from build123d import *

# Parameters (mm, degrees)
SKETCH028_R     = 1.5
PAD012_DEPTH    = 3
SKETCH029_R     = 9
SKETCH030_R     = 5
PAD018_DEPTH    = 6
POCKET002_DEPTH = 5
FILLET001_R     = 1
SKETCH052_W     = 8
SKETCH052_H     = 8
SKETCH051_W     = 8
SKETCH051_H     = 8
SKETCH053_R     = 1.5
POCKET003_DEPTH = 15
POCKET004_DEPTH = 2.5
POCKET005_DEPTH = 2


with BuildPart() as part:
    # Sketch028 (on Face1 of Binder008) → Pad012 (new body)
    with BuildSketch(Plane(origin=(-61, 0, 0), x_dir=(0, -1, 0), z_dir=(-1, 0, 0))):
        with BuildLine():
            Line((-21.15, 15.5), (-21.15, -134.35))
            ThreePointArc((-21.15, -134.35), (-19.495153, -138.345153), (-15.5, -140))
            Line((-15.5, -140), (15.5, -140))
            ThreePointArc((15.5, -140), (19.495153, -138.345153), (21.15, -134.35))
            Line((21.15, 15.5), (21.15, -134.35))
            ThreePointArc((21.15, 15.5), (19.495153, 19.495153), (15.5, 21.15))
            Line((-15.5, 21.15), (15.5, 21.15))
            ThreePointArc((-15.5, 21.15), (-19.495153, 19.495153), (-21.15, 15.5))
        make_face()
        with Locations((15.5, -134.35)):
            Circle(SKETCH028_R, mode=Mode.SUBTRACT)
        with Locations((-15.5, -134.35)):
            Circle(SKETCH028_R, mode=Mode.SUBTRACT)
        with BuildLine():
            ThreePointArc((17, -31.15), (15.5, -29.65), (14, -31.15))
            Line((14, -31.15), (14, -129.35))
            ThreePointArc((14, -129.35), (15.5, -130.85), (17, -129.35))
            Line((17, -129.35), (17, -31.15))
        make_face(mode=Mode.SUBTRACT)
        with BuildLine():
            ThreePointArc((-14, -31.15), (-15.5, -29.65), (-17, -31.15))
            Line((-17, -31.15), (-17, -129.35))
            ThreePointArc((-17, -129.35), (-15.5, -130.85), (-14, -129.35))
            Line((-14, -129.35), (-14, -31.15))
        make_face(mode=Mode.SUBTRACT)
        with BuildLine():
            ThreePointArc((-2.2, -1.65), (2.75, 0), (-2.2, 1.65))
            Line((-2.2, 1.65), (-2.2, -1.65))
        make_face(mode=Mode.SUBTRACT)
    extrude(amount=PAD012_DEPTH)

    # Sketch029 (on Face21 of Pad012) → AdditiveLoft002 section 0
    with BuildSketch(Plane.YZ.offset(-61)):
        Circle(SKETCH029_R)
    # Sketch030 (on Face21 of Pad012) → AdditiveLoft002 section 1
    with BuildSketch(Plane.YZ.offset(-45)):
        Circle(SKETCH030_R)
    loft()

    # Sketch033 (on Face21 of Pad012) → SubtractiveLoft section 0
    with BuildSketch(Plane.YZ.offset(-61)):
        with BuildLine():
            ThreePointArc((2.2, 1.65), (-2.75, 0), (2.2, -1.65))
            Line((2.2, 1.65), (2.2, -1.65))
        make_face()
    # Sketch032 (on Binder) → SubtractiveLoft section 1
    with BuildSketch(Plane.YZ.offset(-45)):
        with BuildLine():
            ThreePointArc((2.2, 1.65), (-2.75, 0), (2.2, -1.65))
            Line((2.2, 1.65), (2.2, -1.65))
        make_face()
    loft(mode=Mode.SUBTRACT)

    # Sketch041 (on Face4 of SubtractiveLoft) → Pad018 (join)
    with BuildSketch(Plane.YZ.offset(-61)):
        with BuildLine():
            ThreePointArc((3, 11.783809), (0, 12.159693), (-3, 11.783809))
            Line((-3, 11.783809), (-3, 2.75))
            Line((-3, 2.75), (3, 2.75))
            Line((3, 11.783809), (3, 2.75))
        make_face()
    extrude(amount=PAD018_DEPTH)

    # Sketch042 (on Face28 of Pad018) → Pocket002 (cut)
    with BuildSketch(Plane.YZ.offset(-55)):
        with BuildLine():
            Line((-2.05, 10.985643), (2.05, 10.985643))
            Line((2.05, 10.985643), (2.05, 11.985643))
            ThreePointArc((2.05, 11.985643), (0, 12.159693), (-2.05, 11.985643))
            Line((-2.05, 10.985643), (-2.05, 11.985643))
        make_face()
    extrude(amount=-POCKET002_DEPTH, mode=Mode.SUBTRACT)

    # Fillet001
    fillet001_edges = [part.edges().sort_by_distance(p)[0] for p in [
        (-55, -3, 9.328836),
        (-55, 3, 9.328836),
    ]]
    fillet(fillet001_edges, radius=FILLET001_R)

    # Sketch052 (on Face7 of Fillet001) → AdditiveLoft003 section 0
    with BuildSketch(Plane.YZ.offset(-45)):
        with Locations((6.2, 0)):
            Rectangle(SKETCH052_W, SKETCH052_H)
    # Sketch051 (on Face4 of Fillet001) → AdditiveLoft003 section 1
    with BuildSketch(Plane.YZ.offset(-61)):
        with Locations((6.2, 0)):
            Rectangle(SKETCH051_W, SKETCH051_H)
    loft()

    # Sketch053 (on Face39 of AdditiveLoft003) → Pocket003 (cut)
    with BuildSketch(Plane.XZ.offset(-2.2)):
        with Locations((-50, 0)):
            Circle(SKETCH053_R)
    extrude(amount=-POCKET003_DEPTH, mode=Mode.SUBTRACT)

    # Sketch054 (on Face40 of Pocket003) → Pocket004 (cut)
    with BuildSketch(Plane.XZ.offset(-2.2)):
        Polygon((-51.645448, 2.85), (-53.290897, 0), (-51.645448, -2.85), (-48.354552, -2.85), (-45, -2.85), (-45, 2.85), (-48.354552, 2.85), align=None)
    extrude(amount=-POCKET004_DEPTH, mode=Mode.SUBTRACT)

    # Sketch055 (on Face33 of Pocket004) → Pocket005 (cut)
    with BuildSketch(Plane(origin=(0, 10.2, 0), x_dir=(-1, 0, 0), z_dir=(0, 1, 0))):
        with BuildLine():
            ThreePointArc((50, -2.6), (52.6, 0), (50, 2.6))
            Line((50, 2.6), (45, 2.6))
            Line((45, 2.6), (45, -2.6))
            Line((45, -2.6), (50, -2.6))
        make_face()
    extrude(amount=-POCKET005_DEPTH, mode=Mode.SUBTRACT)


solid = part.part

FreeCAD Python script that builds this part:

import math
import FreeCAD as App
import Part
import Sketcher
from FreeCAD import Vector
Q = App.Units.Quantity


def edges_at(feature, points):
    """Names of the edges that pass closest to the given points."""
    edges = feature.Shape.Edges
    near = lambda p: min(range(len(edges)), key=lambda i: edges[i].distToShape(Part.Vertex(*p))[0])
    return sorted({f"Edge{near(p) + 1}" for p in points})

doc = App.newDocument("Part")
body = doc.addObject("PartDesign::Body", "Body")

# Sketch on YZ plane
sketch1 = body.newObject("Sketcher::SketchObject", "Sketch")
sketch1.AttachmentSupport = (doc.getObject("YZ_Plane"), [""])
sketch1.MapMode = "FlatFace"
sketch1.AttachmentOffset = App.Placement(Vector(0, 0, -61), App.Rotation())
sketch1.addGeometry(Part.LineSegment(Vector(21.15, 15.5, 0), Vector(21.15, -134.35, 0)), False)
sketch1.addGeometry(Part.ArcOfCircle(Part.Circle(Vector(15.499999, -134.349999, 0), Vector(0, 0, 1), 5.650001), math.radians(-89.999989), math.radians(-0.000011)), False)
sketch1.addGeometry(Part.LineSegment(Vector(15.5, -140, 0), Vector(-15.5, -140, 0)), False)
sketch1.addGeometry(Part.ArcOfCircle(Part.Circle(Vector(-15.499999, -134.349999, 0), Vector(0, 0, 1), 5.650001), math.radians(-179.999989), math.radians(-90.000011)), False)
sketch1.addGeometry(Part.LineSegment(Vector(-21.15, -134.35, 0), Vector(-21.15, 15.5, 0)), False)
sketch1.addGeometry(Part.ArcOfCircle(Part.Circle(Vector(-15.499999, 15.499999, 0), Vector(0, 0, 1), 5.650001), math.radians(90.000011), math.radians(179.999989)), False)
sketch1.addGeometry(Part.LineSegment(Vector(-15.5, 21.15, 0), Vector(15.5, 21.15, 0)), False)
sketch1.addGeometry(Part.ArcOfCircle(Part.Circle(Vector(15.499999, 15.499999, 0), Vector(0, 0, 1), 5.650001), math.radians(0.000011), math.radians(89.999989)), False)
sketch1.addGeometry(Part.Circle(Vector(15.5, -134.35, 0), Vector(0, 0, 1), 1.5), False)
sketch1.addGeometry(Part.ArcOfCircle(Part.Circle(Vector(15.5, -31.15, 0), Vector(0, 0, 1), 1.5), math.radians(0), math.radians(180)), False)
sketch1.addGeometry(Part.LineSegment(Vector(14, -31.15, 0), Vector(14, -129.35, 0)), False)
sketch1.addGeometry(Part.ArcOfCircle(Part.Circle(Vector(15.5, -129.35, 0), Vector(0, 0, 1), 1.5), math.radians(180), math.radians(360)), False)
sketch1.addGeometry(Part.LineSegment(Vector(17, -129.35, 0), Vector(17, -31.15, 0)), False)
sketch1.addGeometry(Part.Circle(Vector(-15.5, -134.35, 0), Vector(0, 0, 1), 1.5), False)
sketch1.addGeometry(Part.ArcOfCircle(Part.Circle(Vector(-15.5, -31.15, 0), Vector(0, 0, 1), 1.5), math.radians(0), math.radians(180)), False)
sketch1.addGeometry(Part.LineSegment(Vector(-17, -31.15, 0), Vector(-17, -129.35, 0)), False)
sketch1.addGeometry(Part.ArcOfCircle(Part.Circle(Vector(-15.5, -129.35, 0), Vector(0, 0, 1), 1.5), math.radians(180), math.radians(360)), False)
sketch1.addGeometry(Part.LineSegment(Vector(-14, -129.35, 0), Vector(-14, -31.15, 0)), False)
sketch1.addGeometry(Part.ArcOfCircle(Part.Circle(Vector(0, 0, 0), Vector(0, 0, 1), 2.75), math.radians(36.869898), math.radians(323.130102)), False)
sketch1.addGeometry(Part.LineSegment(Vector(2.2, -1.65, 0), Vector(2.2, 1.65, 0)), False)
sketch1.addConstraint(Sketcher.Constraint("Tangent", 0, 2, 1, 2))
sketch1.addConstraint(Sketcher.Constraint("Tangent", 1, 1, 2, 1))
sketch1.addConstraint(Sketcher.Constraint("Tangent", 2, 2, 3, 2))
sketch1.addConstraint(Sketcher.Constraint("Tangent", 3, 1, 4, 1))
sketch1.addConstraint(Sketcher.Constraint("Tangent", 4, 2, 5, 2))
sketch1.addConstraint(Sketcher.Constraint("Tangent", 5, 1, 6, 1))
sketch1.addConstraint(Sketcher.Constraint("Tangent", 6, 2, 7, 2))
sketch1.addConstraint(Sketcher.Constraint("Tangent", 7, 1, 0, 1))
sketch1.addConstraint(Sketcher.Constraint("Tangent", 9, 2, 10, 1))
sketch1.addConstraint(Sketcher.Constraint("Tangent", 10, 2, 11, 1))
sketch1.addConstraint(Sketcher.Constraint("Tangent", 11, 2, 12, 1))
sketch1.addConstraint(Sketcher.Constraint("Tangent", 12, 2, 9, 1))
sketch1.addConstraint(Sketcher.Constraint("Tangent", 14, 2, 15, 1))
sketch1.addConstraint(Sketcher.Constraint("Tangent", 15, 2, 16, 1))
sketch1.addConstraint(Sketcher.Constraint("Tangent", 16, 2, 17, 1))
sketch1.addConstraint(Sketcher.Constraint("Tangent", 17, 2, 14, 1))
sketch1.addConstraint(Sketcher.Constraint("Coincident", 18, 1, 19, 2))
sketch1.addConstraint(Sketcher.Constraint("Coincident", 19, 1, 18, 2))
sketch1.addConstraint(Sketcher.Constraint("Vertical", 0))
sketch1.addConstraint(Sketcher.Constraint("Horizontal", 2))
sketch1.addConstraint(Sketcher.Constraint("Vertical", 4))
sketch1.addConstraint(Sketcher.Constraint("Horizontal", 6))
sketch1.addConstraint(Sketcher.Constraint("Vertical", 10))
sketch1.addConstraint(Sketcher.Constraint("Vertical", 12))
sketch1.addConstraint(Sketcher.Constraint("Vertical", 15))
sketch1.addConstraint(Sketcher.Constraint("Vertical", 17))
sketch1.addConstraint(Sketcher.Constraint("Vertical", 19))
sketch1.addConstraint(Sketcher.Constraint("Coincident", 18, 3, -1, 1))
sketch1.addConstraint(Sketcher.Constraint("Coincident", 8, 3, 1, 3))
sketch1.addConstraint(Sketcher.Constraint("Coincident", 13, 3, 3, 3))
sketch1.addConstraint(Sketcher.Constraint("Equal", 1, 3))
sketch1.addConstraint(Sketcher.Constraint("Equal", 3, 5))
sketch1.addConstraint(Sketcher.Constraint("Equal", 5, 7))
sketch1.addConstraint(Sketcher.Constraint("Equal", 8, 9))
sketch1.addConstraint(Sketcher.Constraint("Equal", 11, 13))
sketch1.addConstraint(Sketcher.Constraint("Equal", 13, 14))
sketch1.addConstraint(Sketcher.Constraint("Symmetric", 9, 3, 14, 3, -2))
sketch1.addConstraint(Sketcher.Constraint("Horizontal", 11, 3, 16, 3))
sketch1.addConstraint(Sketcher.Constraint("Vertical", 8, 3, 9, 3))
sketch1.addConstraint(Sketcher.Constraint("Vertical", 13, 3, 14, 3))
sketch1.addConstraint(Sketcher.Constraint("Diameter", 8, 3.0))
sketch1.addConstraint(Sketcher.Constraint("DistanceX", 2, 2, 2, 1, 31.0))
sketch1.addConstraint(Sketcher.Constraint("Radius", 1, 5.650001))
sketch1.addConstraint(Sketcher.Constraint("Radius", 18, 2.75))
sketch1.addConstraint(Sketcher.Constraint("DistanceY", 10, 2, 10, 1, 98.2))
sketch1.addConstraint(Sketcher.Constraint("DistanceY", 19, 1, 19, 2, 3.3))
sketch1.addConstraint(Sketcher.Constraint("DistanceY", 1, 1, -1, 1, 140.0))
sketch1.addConstraint(Sketcher.Constraint("DistanceY", 1, 3, 11, 3, 4.999999))
sketch1.addConstraint(Sketcher.Constraint("DistanceY", 0, 2, 0, 1, 149.85))
pad1 = body.newObject("PartDesign::Pad", "Pad")
pad1.Profile = sketch1
pad1.Length = 3
pad1.Reversed = True

# Sketch on YZ plane
sketch2 = body.newObject("Sketcher::SketchObject", "Sketch001")
sketch2.AttachmentSupport = (doc.getObject("YZ_Plane"), [""])
sketch2.MapMode = "FlatFace"
sketch2.AttachmentOffset = App.Placement(Vector(0, 0, -61), App.Rotation())
sketch2.addGeometry(Part.Circle(Vector(0, 0, 0), Vector(0, 0, 1), 9), False)
sketch2.addConstraint(Sketcher.Constraint("Coincident", 0, 3, -1, 1))
sketch2.addConstraint(Sketcher.Constraint("Diameter", 0, 18.0))

# Sketch on YZ plane
sketch3 = body.newObject("Sketcher::SketchObject", "Sketch002")
sketch3.AttachmentSupport = (doc.getObject("YZ_Plane"), [""])
sketch3.MapMode = "FlatFace"
sketch3.AttachmentOffset = App.Placement(Vector(0, 0, -45), App.Rotation())
sketch3.addGeometry(Part.Circle(Vector(0, 0, 0), Vector(0, 0, 1), 5), False)
sketch3.addConstraint(Sketcher.Constraint("Coincident", 0, 3, -1, 1))
sketch3.addConstraint(Sketcher.Constraint("Diameter", 0, 10.0))

additiveloft = body.newObject("PartDesign::AdditiveLoft", "AdditiveLoft")
additiveloft.Profile = sketch2
additiveloft.Sections = [sketch3]

# Sketch on YZ plane
sketch4 = body.newObject("Sketcher::SketchObject", "Sketch003")
sketch4.AttachmentSupport = (doc.getObject("YZ_Plane"), [""])
sketch4.MapMode = "FlatFace"
sketch4.AttachmentOffset = App.Placement(Vector(0, 0, -61), App.Rotation())
sketch4.addGeometry(Part.ArcOfCircle(Part.Circle(Vector(0, 0, 0), Vector(0, 0, 1), 2.75), math.radians(36.869898), math.radians(323.130102)), False)
sketch4.addGeometry(Part.LineSegment(Vector(2.2, -1.65, 0), Vector(2.2, 1.65, 0)), False)
sketch4.addConstraint(Sketcher.Constraint("Coincident", 0, 1, 1, 2))
sketch4.addConstraint(Sketcher.Constraint("Coincident", 1, 1, 0, 2))
sketch4.addConstraint(Sketcher.Constraint("Vertical", 1))
sketch4.addConstraint(Sketcher.Constraint("Coincident", 0, 3, -1, 1))
sketch4.addConstraint(Sketcher.Constraint("Radius", 0, 2.75))
sketch4.addConstraint(Sketcher.Constraint("DistanceY", 1, 1, 1, 2, 3.3))

# Sketch on YZ plane
sketch5 = body.newObject("Sketcher::SketchObject", "Sketch004")
sketch5.AttachmentSupport = (doc.getObject("YZ_Plane"), [""])
sketch5.MapMode = "FlatFace"
sketch5.AttachmentOffset = App.Placement(Vector(0, 0, -45), App.Rotation())
sketch5.addGeometry(Part.ArcOfCircle(Part.Circle(Vector(0, 0, 0), Vector(0, 0, 1), 2.75), math.radians(36.869898), math.radians(323.130102)), False)
sketch5.addGeometry(Part.LineSegment(Vector(2.2, -1.65, 0), Vector(2.2, 1.65, 0)), False)
sketch5.addConstraint(Sketcher.Constraint("Coincident", 0, 1, 1, 2))
sketch5.addConstraint(Sketcher.Constraint("Coincident", 1, 1, 0, 2))
sketch5.addConstraint(Sketcher.Constraint("Vertical", 1))
sketch5.addConstraint(Sketcher.Constraint("Coincident", 0, 3, -1, 1))
sketch5.addConstraint(Sketcher.Constraint("Radius", 0, 2.75))
sketch5.addConstraint(Sketcher.Constraint("DistanceY", 1, 1, 1, 2, 3.3))

subtractiveloft = body.newObject("PartDesign::SubtractiveLoft", "SubtractiveLoft")
subtractiveloft.Profile = sketch4
subtractiveloft.Sections = [sketch5]

# Sketch on YZ plane
sketch6 = body.newObject("Sketcher::SketchObject", "Sketch005")
sketch6.AttachmentSupport = (doc.getObject("YZ_Plane"), [""])
sketch6.MapMode = "FlatFace"
sketch6.AttachmentOffset = App.Placement(Vector(0, 0, -61), App.Rotation())
sketch6.addGeometry(Part.ArcOfCircle(Part.Circle(Vector(0, -0.000028, 0), Vector(0, 0, 1), 12.159721), math.radians(75.716722), math.radians(104.283278)), False)
sketch6.addGeometry(Part.LineSegment(Vector(-3, 11.783809, 0), Vector(-3, 2.75, 0)), False)
sketch6.addGeometry(Part.LineSegment(Vector(-3, 2.75, 0), Vector(3, 2.75, 0)), False)
sketch6.addGeometry(Part.LineSegment(Vector(3, 2.75, 0), Vector(3, 11.783809, 0)), False)
sketch6.addConstraint(Sketcher.Constraint("Coincident", 0, 2, 1, 1))
sketch6.addConstraint(Sketcher.Constraint("Coincident", 1, 2, 2, 1))
sketch6.addConstraint(Sketcher.Constraint("Coincident", 2, 2, 3, 1))
sketch6.addConstraint(Sketcher.Constraint("Coincident", 3, 2, 0, 1))
sketch6.addConstraint(Sketcher.Constraint("Vertical", 1))
sketch6.addConstraint(Sketcher.Constraint("Horizontal", 2))
sketch6.addConstraint(Sketcher.Constraint("Vertical", 3))
sketch6.addConstraint(Sketcher.Constraint("Symmetric", 0, 2, 3, 2, -2))
sketch6.addConstraint(Sketcher.Constraint("DistanceX", 2, 1, 2, 2, 6.0))
sketch6.addConstraint(Sketcher.Constraint("DistanceY", -1, 1, 1, 2, 2.75))
sketch6.addConstraint(Sketcher.Constraint("Radius", 0, 12.159721))
sketch6.addConstraint(Sketcher.Constraint("DistanceY", 1, 2, 1, 1, 9.033809))
pad2 = body.newObject("PartDesign::Pad", "Pad001")
pad2.Profile = sketch6
pad2.Length = 6

# Sketch on YZ plane
sketch7 = body.newObject("Sketcher::SketchObject", "Sketch006")
sketch7.AttachmentSupport = (doc.getObject("YZ_Plane"), [""])
sketch7.MapMode = "FlatFace"
sketch7.AttachmentOffset = App.Placement(Vector(0, 0, -55), App.Rotation())
sketch7.addGeometry(Part.LineSegment(Vector(-2.05, 10.985643, 0), Vector(2.05, 10.985643, 0)), False)
sketch7.addGeometry(Part.LineSegment(Vector(2.05, 10.985643, 0), Vector(2.05, 11.985643, 0)), False)
sketch7.addGeometry(Part.ArcOfCircle(Part.Circle(Vector(0, -0.000012, 0), Vector(0, 0, 1), 12.159705), math.radians(80.294174), math.radians(99.705826)), False)
sketch7.addGeometry(Part.LineSegment(Vector(-2.05, 11.985643, 0), Vector(-2.05, 10.985643, 0)), False)
sketch7.addConstraint(Sketcher.Constraint("Coincident", 0, 2, 1, 1))
sketch7.addConstraint(Sketcher.Constraint("Coincident", 1, 2, 2, 1))
sketch7.addConstraint(Sketcher.Constraint("Coincident", 2, 2, 3, 1))
sketch7.addConstraint(Sketcher.Constraint("Coincident", 3, 2, 0, 1))
sketch7.addConstraint(Sketcher.Constraint("Horizontal", 0))
sketch7.addConstraint(Sketcher.Constraint("Vertical", 1))
sketch7.addConstraint(Sketcher.Constraint("Vertical", 3))
sketch7.addConstraint(Sketcher.Constraint("Symmetric", 1, 2, 2, 2, -2))
sketch7.addConstraint(Sketcher.Constraint("DistanceY", 1, 1, 1, 2, 1.0))
sketch7.addConstraint(Sketcher.Constraint("DistanceX", 0, 1, 0, 2, 4.1))
sketch7.addConstraint(Sketcher.Constraint("Radius", 2, 12.159705))
sketch7.addConstraint(Sketcher.Constraint("DistanceY", -1, 1, 0, 2, 10.985643))
pocket1 = body.newObject("PartDesign::Pocket", "Pocket")
pocket1.Profile = sketch7
pocket1.Length = 5
doc.recompute()

fillet = body.newObject("PartDesign::Fillet", "Fillet")
fillet.Base = (pocket1, edges_at(pocket1, [(-55, -3, 9.329), (-55, 3, 9.329)]))
fillet.Radius = 1

# Sketch on YZ plane
sketch8 = body.newObject("Sketcher::SketchObject", "Sketch007")
sketch8.AttachmentSupport = (doc.getObject("YZ_Plane"), [""])
sketch8.MapMode = "FlatFace"
sketch8.AttachmentOffset = App.Placement(Vector(0, 0, -45), App.Rotation())
sketch8.addGeometry(Part.LineSegment(Vector(2.2, 4, 0), Vector(2.2, -4, 0)), False)
sketch8.addGeometry(Part.LineSegment(Vector(2.2, -4, 0), Vector(10.2, -4, 0)), False)
sketch8.addGeometry(Part.LineSegment(Vector(10.2, -4, 0), Vector(10.2, 4, 0)), False)
sketch8.addGeometry(Part.LineSegment(Vector(10.2, 4, 0), Vector(2.2, 4, 0)), False)
sketch8.addConstraint(Sketcher.Constraint("Coincident", 0, 2, 1, 1))
sketch8.addConstraint(Sketcher.Constraint("Coincident", 1, 2, 2, 1))
sketch8.addConstraint(Sketcher.Constraint("Coincident", 2, 2, 3, 1))
sketch8.addConstraint(Sketcher.Constraint("Coincident", 3, 2, 0, 1))
sketch8.addConstraint(Sketcher.Constraint("Vertical", 0))
sketch8.addConstraint(Sketcher.Constraint("Horizontal", 1))
sketch8.addConstraint(Sketcher.Constraint("Vertical", 2))
sketch8.addConstraint(Sketcher.Constraint("Horizontal", 3))
sketch8.addConstraint(Sketcher.Constraint("Equal", 3, 0))
sketch8.addConstraint(Sketcher.Constraint("DistanceX", 1, 1, 1, 2, 8.0))
sketch8.addConstraint(Sketcher.Constraint("DistanceY", 0, 2, -1, 1, 4.0))
sketch8.addConstraint(Sketcher.Constraint("DistanceX", -1, 1, 0, 2, 2.2))

# Sketch on YZ plane
sketch9 = body.newObject("Sketcher::SketchObject", "Sketch008")
sketch9.AttachmentSupport = (doc.getObject("YZ_Plane"), [""])
sketch9.MapMode = "FlatFace"
sketch9.AttachmentOffset = App.Placement(Vector(0, 0, -61), App.Rotation())
sketch9.addGeometry(Part.LineSegment(Vector(2.2, 4, 0), Vector(2.2, -4, 0)), False)
sketch9.addGeometry(Part.LineSegment(Vector(2.2, -4, 0), Vector(10.2, -4, 0)), False)
sketch9.addGeometry(Part.LineSegment(Vector(10.2, -4, 0), Vector(10.2, 4, 0)), False)
sketch9.addGeometry(Part.LineSegment(Vector(10.2, 4, 0), Vector(2.2, 4, 0)), False)
sketch9.addConstraint(Sketcher.Constraint("Coincident", 0, 2, 1, 1))
sketch9.addConstraint(Sketcher.Constraint("Coincident", 1, 2, 2, 1))
sketch9.addConstraint(Sketcher.Constraint("Coincident", 2, 2, 3, 1))
sketch9.addConstraint(Sketcher.Constraint("Coincident", 3, 2, 0, 1))
sketch9.addConstraint(Sketcher.Constraint("Vertical", 0))
sketch9.addConstraint(Sketcher.Constraint("Horizontal", 1))
sketch9.addConstraint(Sketcher.Constraint("Vertical", 2))
sketch9.addConstraint(Sketcher.Constraint("Horizontal", 3))
sketch9.addConstraint(Sketcher.Constraint("Equal", 3, 0))
sketch9.addConstraint(Sketcher.Constraint("DistanceX", 1, 1, 1, 2, 8.0))
sketch9.addConstraint(Sketcher.Constraint("DistanceY", 0, 2, -1, 1, 4.0))
sketch9.addConstraint(Sketcher.Constraint("DistanceX", -1, 1, 0, 2, 2.2))

additiveloft2 = body.newObject("PartDesign::AdditiveLoft", "AdditiveLoft001")
additiveloft2.Profile = sketch8
additiveloft2.Sections = [sketch9]

# Sketch on XZ plane
sketch10 = body.newObject("Sketcher::SketchObject", "Sketch009")
sketch10.AttachmentSupport = (doc.getObject("XZ_Plane"), [""])
sketch10.MapMode = "FlatFace"
sketch10.AttachmentOffset = App.Placement(Vector(0, 0, -2.2), App.Rotation())
sketch10.addGeometry(Part.Circle(Vector(-50, 0, 0), Vector(0, 0, 1), 1.5), False)
sketch10.addConstraint(Sketcher.Constraint("PointOnObject", 0, 3, -1))
sketch10.addConstraint(Sketcher.Constraint("Diameter", 0, 3.0))
sketch10.addConstraint(Sketcher.Constraint("DistanceX", 0, 3, -1, 1, 50.0))
pocket2 = body.newObject("PartDesign::Pocket", "Pocket001")
pocket2.Profile = sketch10
pocket2.Length = 15

# Sketch on XZ plane
sketch11 = body.newObject("Sketcher::SketchObject", "Sketch010")
sketch11.AttachmentSupport = (doc.getObject("XZ_Plane"), [""])
sketch11.MapMode = "FlatFace"
sketch11.AttachmentOffset = App.Placement(Vector(0, 0, -2.2), App.Rotation())
sketch11.addGeometry(Part.LineSegment(Vector(-51.645448, 2.85, 0), Vector(-53.290897, 0, 0)), False)
sketch11.addGeometry(Part.LineSegment(Vector(-53.290897, 0, 0), Vector(-51.645448, -2.85, 0)), False)
sketch11.addGeometry(Part.LineSegment(Vector(-51.645448, -2.85, 0), Vector(-45, -2.85, 0)), False)
sketch11.addGeometry(Part.LineSegment(Vector(-45, -2.85, 0), Vector(-45, 2.85, 0)), False)
sketch11.addGeometry(Part.LineSegment(Vector(-45, 2.85, 0), Vector(-51.645448, 2.85, 0)), False)
sketch11.addConstraint(Sketcher.Constraint("Coincident", 0, 2, 1, 1))
sketch11.addConstraint(Sketcher.Constraint("Coincident", 1, 2, 2, 1))
sketch11.addConstraint(Sketcher.Constraint("Coincident", 2, 2, 3, 1))
sketch11.addConstraint(Sketcher.Constraint("Coincident", 3, 2, 4, 1))
sketch11.addConstraint(Sketcher.Constraint("Coincident", 4, 2, 0, 1))
sketch11.addConstraint(Sketcher.Constraint("Horizontal", 2))
sketch11.addConstraint(Sketcher.Constraint("Vertical", 3))
sketch11.addConstraint(Sketcher.Constraint("Horizontal", 4))
sketch11.addConstraint(Sketcher.Constraint("Symmetric", 1, 2, 4, 2, -1))
sketch11.addConstraint(Sketcher.Constraint("PointOnObject", 0, 2, -1))
sketch11.addConstraint(Sketcher.Constraint("Angle", 0, Q("-120.000011 deg")))
sketch11.addConstraint(Sketcher.Constraint("DistanceY", 3, 1, 3, 2, 5.7))
sketch11.addConstraint(Sketcher.Constraint("DistanceX", 2, 2, -1, 1, 45.0))
sketch11.addConstraint(Sketcher.Constraint("DistanceX", 2, 1, 2, 2, 6.645448))
pocket3 = body.newObject("PartDesign::Pocket", "Pocket002")
pocket3.Profile = sketch11
pocket3.Length = 2.5

# Sketch on XZ plane
sketch12 = body.newObject("Sketcher::SketchObject", "Sketch011")
sketch12.AttachmentSupport = (doc.getObject("XZ_Plane"), [""])
sketch12.MapMode = "FlatFace"
sketch12.AttachmentOffset = App.Placement(Vector(0, 0, -10.2), App.Rotation())
sketch12.addGeometry(Part.ArcOfCircle(Part.Circle(Vector(-50, 0, 0), Vector(0, 0, 1), 2.6), math.radians(90), math.radians(270)), False)
sketch12.addGeometry(Part.LineSegment(Vector(-50, 2.6, 0), Vector(-45, 2.6, 0)), False)
sketch12.addGeometry(Part.LineSegment(Vector(-45, 2.6, 0), Vector(-45, -2.6, 0)), False)
sketch12.addGeometry(Part.LineSegment(Vector(-45, -2.6, 0), Vector(-50, -2.6, 0)), False)
sketch12.addConstraint(Sketcher.Constraint("Tangent", 0, 1, 1, 1))
sketch12.addConstraint(Sketcher.Constraint("Coincident", 1, 2, 2, 1))
sketch12.addConstraint(Sketcher.Constraint("Coincident", 2, 2, 3, 1))
sketch12.addConstraint(Sketcher.Constraint("Tangent", 3, 2, 0, 2))
sketch12.addConstraint(Sketcher.Constraint("Horizontal", 1))
sketch12.addConstraint(Sketcher.Constraint("Vertical", 2))
sketch12.addConstraint(Sketcher.Constraint("Horizontal", 3))
sketch12.addConstraint(Sketcher.Constraint("PointOnObject", 0, 3, -1))
sketch12.addConstraint(Sketcher.Constraint("Radius", 0, 2.6))
sketch12.addConstraint(Sketcher.Constraint("DistanceX", 1, 1, 1, 2, 5.0))
sketch12.addConstraint(Sketcher.Constraint("DistanceX", 0, 3, -1, 1, 50.0))
pocket4 = body.newObject("PartDesign::Pocket", "Pocket003")
pocket4.Profile = sketch12
pocket4.Length = 2
pocket4.Reversed = True

doc.recompute()
